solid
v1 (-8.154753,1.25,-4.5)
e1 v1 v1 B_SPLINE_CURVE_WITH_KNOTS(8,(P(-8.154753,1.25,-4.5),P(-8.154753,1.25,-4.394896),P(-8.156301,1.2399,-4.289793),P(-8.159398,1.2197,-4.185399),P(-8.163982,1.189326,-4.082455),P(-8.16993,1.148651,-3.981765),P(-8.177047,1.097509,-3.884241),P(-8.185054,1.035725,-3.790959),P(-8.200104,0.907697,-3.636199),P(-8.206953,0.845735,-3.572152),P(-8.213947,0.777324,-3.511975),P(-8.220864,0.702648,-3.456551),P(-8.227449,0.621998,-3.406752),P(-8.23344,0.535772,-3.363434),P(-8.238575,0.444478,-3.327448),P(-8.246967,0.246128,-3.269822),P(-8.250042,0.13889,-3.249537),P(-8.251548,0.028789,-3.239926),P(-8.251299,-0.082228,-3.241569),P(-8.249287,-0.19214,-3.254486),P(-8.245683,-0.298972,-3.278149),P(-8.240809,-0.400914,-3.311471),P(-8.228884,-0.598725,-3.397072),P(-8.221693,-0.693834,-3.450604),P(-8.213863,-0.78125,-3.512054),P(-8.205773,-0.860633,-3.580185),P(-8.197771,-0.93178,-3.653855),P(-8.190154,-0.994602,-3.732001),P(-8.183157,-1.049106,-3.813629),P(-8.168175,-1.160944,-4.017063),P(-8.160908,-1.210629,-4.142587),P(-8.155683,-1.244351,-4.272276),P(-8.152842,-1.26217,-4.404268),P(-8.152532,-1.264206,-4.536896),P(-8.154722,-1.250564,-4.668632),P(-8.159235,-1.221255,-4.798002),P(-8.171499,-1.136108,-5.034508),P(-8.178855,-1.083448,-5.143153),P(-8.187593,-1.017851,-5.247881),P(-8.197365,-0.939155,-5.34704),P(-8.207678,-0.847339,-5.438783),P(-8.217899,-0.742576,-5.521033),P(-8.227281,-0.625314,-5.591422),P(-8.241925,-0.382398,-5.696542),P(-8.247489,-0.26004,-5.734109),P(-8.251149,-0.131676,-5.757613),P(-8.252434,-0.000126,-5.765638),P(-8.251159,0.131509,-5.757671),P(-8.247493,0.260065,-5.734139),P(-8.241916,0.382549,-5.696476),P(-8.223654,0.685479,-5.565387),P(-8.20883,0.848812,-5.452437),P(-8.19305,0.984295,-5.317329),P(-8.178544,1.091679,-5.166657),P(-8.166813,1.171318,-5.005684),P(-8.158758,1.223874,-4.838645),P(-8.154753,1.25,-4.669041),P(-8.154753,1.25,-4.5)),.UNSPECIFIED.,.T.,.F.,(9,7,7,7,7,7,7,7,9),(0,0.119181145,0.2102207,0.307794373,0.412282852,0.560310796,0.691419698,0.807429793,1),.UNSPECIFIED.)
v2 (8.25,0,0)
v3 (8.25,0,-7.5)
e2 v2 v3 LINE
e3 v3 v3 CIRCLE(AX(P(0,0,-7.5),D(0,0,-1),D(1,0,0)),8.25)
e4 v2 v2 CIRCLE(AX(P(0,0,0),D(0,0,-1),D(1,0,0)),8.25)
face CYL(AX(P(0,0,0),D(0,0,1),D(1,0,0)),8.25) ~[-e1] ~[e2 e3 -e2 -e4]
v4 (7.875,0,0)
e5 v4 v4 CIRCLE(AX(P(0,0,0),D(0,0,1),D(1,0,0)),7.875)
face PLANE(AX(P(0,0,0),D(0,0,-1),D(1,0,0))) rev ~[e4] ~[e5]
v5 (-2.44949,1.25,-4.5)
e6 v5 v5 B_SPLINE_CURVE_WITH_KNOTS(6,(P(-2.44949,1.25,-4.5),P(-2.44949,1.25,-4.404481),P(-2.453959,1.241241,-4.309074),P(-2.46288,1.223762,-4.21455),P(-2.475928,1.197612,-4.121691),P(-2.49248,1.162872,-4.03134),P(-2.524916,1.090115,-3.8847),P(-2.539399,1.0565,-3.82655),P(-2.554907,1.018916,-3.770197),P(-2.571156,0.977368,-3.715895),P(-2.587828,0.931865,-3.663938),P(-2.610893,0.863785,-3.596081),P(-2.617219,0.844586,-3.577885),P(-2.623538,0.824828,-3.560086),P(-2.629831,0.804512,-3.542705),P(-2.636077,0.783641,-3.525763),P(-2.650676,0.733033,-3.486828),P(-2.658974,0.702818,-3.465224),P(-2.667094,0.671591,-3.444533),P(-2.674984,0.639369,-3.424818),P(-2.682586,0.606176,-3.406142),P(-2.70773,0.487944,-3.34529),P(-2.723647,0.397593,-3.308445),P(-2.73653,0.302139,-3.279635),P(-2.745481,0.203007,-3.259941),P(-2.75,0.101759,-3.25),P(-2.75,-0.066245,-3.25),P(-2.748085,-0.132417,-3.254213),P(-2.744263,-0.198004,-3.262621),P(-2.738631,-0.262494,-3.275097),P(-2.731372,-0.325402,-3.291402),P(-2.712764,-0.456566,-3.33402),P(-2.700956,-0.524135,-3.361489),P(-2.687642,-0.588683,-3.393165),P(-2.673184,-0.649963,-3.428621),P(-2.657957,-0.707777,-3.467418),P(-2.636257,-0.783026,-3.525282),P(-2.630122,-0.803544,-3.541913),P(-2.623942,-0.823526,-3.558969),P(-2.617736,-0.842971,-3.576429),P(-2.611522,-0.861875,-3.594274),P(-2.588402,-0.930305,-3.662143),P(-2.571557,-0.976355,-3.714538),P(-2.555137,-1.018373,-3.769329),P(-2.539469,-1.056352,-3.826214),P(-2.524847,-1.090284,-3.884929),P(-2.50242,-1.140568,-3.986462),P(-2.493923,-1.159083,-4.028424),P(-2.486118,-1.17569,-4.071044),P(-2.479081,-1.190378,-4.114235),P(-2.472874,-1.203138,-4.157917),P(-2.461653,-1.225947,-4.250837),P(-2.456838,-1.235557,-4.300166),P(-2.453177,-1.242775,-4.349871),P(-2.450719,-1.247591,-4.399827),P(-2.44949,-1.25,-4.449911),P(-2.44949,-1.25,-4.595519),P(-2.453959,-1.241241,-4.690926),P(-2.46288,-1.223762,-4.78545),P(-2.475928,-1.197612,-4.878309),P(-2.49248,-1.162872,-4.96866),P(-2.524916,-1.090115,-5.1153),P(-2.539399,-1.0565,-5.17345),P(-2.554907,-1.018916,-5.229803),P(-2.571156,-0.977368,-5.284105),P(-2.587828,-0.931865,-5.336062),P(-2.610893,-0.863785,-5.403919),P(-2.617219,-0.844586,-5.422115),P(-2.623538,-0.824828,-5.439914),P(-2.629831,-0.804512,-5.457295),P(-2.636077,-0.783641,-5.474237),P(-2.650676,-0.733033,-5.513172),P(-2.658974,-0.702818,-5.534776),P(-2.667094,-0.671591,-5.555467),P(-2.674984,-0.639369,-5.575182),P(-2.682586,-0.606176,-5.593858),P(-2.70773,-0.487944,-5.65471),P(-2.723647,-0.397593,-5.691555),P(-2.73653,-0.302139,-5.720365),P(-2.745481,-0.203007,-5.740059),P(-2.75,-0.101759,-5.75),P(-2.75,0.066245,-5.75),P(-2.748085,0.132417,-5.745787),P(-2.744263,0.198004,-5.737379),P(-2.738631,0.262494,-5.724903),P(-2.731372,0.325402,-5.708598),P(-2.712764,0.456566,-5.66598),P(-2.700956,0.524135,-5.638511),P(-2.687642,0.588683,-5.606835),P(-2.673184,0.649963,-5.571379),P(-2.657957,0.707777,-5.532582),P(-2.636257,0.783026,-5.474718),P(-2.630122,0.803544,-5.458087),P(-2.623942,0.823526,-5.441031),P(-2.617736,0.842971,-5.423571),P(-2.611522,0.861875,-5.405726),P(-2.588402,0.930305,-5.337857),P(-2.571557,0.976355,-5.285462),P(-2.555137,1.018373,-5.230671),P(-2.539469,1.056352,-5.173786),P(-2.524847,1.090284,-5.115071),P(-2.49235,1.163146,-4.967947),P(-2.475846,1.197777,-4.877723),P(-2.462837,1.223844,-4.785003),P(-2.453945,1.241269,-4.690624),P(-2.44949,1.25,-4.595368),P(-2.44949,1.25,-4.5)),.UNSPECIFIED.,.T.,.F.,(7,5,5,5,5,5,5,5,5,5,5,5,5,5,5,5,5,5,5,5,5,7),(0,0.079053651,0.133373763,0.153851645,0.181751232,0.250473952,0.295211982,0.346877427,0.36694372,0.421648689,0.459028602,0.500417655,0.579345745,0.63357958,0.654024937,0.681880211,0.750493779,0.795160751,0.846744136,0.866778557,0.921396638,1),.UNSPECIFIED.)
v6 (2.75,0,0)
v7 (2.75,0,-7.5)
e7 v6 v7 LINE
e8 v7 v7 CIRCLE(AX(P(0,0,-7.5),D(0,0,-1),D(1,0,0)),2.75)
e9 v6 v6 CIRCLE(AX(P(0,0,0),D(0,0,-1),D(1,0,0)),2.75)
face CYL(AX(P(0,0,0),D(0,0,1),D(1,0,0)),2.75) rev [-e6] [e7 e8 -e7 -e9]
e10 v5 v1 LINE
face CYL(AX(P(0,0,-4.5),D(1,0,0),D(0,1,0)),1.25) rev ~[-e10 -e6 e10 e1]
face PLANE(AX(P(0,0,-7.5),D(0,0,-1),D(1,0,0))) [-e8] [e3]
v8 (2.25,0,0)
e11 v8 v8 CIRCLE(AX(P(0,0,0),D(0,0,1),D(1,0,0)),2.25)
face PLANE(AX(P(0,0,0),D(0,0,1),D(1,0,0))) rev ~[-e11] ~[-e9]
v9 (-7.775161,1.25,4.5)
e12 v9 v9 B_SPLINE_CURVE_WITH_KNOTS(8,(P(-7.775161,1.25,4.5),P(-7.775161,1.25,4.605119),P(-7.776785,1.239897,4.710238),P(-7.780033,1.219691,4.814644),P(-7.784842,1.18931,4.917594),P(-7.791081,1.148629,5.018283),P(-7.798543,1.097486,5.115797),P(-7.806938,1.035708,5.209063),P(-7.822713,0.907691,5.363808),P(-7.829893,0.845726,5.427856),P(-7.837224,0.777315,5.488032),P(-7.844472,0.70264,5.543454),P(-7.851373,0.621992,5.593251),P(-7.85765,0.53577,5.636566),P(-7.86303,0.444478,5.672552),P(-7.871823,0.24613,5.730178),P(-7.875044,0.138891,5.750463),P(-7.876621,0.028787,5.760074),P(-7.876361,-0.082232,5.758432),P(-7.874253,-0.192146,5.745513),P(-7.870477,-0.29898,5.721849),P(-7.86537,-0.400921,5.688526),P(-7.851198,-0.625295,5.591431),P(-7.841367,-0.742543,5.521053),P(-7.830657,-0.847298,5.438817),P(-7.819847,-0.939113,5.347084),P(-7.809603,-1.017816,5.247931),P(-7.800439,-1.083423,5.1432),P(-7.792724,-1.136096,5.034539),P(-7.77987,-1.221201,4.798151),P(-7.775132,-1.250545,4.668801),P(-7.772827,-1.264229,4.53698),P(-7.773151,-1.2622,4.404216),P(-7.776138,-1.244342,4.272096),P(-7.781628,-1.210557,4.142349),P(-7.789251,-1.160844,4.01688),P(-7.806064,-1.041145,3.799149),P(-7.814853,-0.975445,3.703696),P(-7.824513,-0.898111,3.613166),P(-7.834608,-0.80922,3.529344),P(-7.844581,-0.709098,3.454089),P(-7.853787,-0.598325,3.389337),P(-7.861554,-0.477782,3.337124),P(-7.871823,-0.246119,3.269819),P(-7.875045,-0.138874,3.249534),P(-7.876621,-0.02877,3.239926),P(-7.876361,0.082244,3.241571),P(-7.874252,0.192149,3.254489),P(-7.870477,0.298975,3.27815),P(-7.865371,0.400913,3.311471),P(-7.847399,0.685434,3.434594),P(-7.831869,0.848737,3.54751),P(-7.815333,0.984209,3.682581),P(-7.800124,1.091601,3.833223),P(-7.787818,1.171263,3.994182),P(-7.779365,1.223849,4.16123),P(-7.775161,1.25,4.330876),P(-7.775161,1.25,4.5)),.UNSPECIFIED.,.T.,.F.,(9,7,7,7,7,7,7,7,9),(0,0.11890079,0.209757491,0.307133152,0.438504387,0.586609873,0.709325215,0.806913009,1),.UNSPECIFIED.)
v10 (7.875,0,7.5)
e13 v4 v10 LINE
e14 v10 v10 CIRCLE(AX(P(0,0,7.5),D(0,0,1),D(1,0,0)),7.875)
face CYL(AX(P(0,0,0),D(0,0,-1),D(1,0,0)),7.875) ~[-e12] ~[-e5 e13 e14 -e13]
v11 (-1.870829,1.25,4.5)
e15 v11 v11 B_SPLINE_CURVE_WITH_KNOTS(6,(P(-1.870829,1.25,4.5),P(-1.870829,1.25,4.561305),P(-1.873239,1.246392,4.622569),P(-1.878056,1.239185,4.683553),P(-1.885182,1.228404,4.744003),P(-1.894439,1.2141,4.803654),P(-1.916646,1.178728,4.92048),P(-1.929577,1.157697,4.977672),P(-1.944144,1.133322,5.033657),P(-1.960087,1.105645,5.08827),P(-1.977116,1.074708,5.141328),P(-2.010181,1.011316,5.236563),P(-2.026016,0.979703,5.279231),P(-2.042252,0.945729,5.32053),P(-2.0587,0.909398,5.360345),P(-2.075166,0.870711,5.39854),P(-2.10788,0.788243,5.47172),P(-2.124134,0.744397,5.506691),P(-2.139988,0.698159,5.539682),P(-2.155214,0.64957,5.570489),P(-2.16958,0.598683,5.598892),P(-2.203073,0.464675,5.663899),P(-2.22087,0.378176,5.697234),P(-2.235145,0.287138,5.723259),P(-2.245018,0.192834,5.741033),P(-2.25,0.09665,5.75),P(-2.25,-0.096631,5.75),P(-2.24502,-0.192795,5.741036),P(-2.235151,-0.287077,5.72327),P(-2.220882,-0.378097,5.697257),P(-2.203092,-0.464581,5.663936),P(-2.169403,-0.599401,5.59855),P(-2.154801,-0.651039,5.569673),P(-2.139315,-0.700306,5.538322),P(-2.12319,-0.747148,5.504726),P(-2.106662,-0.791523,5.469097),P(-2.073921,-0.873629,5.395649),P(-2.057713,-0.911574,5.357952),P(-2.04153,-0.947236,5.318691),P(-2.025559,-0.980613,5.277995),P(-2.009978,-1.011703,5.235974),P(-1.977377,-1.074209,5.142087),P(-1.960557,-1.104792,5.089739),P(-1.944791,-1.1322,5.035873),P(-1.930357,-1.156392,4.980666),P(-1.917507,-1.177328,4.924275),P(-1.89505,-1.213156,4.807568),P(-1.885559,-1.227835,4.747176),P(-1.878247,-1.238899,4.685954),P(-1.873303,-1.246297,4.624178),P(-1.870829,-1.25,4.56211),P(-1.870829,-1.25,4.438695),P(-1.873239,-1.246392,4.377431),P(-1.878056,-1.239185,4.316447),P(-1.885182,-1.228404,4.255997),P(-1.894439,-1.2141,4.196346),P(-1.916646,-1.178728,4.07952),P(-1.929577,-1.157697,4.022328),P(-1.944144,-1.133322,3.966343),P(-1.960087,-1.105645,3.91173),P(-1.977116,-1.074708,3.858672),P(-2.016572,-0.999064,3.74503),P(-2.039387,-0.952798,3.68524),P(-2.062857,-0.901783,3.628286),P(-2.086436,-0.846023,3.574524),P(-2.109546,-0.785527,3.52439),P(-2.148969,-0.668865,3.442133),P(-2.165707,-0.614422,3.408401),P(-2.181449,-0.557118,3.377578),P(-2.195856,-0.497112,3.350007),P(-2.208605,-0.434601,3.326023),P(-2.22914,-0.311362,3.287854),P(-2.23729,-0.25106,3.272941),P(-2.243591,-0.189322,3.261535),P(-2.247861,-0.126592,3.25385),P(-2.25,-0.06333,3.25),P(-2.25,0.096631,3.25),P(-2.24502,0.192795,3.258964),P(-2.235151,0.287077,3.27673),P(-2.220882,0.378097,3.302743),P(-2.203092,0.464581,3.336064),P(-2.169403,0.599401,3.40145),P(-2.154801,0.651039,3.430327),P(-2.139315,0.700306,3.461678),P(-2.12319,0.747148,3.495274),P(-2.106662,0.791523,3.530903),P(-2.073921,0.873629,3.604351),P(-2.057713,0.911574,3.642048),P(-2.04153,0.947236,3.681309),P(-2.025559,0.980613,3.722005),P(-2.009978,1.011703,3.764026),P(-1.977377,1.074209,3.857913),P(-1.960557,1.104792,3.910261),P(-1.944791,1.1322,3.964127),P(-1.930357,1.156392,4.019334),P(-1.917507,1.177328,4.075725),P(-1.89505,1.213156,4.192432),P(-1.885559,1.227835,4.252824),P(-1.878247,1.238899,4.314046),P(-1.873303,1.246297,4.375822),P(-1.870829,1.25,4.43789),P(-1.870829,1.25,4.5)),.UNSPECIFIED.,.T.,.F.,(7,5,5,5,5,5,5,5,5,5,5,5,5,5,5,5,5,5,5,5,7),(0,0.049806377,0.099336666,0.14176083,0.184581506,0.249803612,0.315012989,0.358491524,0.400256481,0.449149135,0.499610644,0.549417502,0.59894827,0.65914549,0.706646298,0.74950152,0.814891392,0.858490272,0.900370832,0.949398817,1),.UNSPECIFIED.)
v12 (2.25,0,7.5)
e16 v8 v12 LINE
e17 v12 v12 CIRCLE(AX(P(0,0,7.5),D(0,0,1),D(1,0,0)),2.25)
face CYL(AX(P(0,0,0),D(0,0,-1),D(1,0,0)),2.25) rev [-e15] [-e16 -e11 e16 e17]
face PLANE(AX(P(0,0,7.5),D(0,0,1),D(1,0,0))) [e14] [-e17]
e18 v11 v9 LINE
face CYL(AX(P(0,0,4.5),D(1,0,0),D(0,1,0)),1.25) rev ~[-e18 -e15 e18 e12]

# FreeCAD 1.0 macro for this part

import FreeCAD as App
import Part
import Sketcher
Q = App.Units.Quantity

doc = App.newDocument("Part")
params = doc.addObject("Spreadsheet::Sheet", "Params")
for row, (alias, value) in enumerate([
    ("sketch1_diameter", "4.5 mm"),
    ("sketch1_diameter2", "15.75 mm"),
    ("pad1_length", "7.5 mm"),
    ("sketch2_diameter", "16.5 mm"),
    ("sketch2_diameter2", "5.5 mm"),
    ("pad2_length", "7.5 mm"),
    ("sketch3_diameter", "2.5 mm"),
    ("pocket1_length", "25 mm"),
], start=1):
    params.set(f"A{row}", alias)
    params.set(f"B{row}", "=" + value)
    params.setAlias(f"B{row}", alias)

body = doc.addObject("PartDesign::Body", "Body")

# Sketch on XY plane
sketch1 = doc.addObject("Sketcher::SketchObject", "Sketch")
body.addObject(sketch1)
sketch1.AttachmentSupport = (doc.XY_Plane, [""])
sketch1.MapMode = "FlatFace"
sketch1.addGeometry([
    Part.Circle(App.Vector(0, 0, 0), App.Vector(0, 0, 1), 7.9),
    Part.Circle(App.Vector(0, 0, 0), App.Vector(0, 0, 1), 2.2),
], False)
sketch1.addConstraint([
    Sketcher.Constraint("Coincident", 0, 3, -1, 1),
    Sketcher.Constraint("Coincident", 1, 3, -1, 1),
    Sketcher.Constraint("Diameter", 1, Q("4.5 mm")),
    Sketcher.Constraint("Diameter", 0, Q("15.75 mm")),
])
sketch1.setExpression("Constraints[2]", "Params.sketch1_diameter")
sketch1.setExpression("Constraints[3]", "Params.sketch1_diameter2")
pad1 = doc.addObject("PartDesign::Pad", "Pad")
body.addObject(pad1)
pad1.Profile = sketch1
pad1.setExpression("Length", "Params.pad1_length")

# Sketch on XY plane
sketch2 = doc.addObject("Sketcher::SketchObject", "Sketch001")
body.addObject(sketch2)
sketch2.AttachmentSupport = (doc.XY_Plane, [""])
sketch2.MapMode = "FlatFace"
sketch2.addGeometry([
    Part.Circle(App.Vector(0, 0, 0), App.Vector(0, 0, 1), 8.2),
    Part.Circle(App.Vector(0, 0, 0), App.Vector(0, 0, 1), 2.8),
], False)
sketch2.addConstraint([
    Sketcher.Constraint("Coincident", 0, 3, -1, 1),
    Sketcher.Constraint("Coincident", 1, 3, -1, 1),
    Sketcher.Constraint("Diameter", 0, Q("16.5 mm")),
    Sketcher.Constraint("Diameter", 1, Q("5.5 mm")),
])
sketch2.setExpression("Constraints[2]", "Params.sketch2_diameter")
sketch2.setExpression("Constraints[3]", "Params.sketch2_diameter2")
pad2 = doc.addObject("PartDesign::Pad", "Pad001")
body.addObject(pad2)
pad2.Profile = sketch2
pad2.setExpression("Length", "Params.pad2_length")
pad2.Reversed = True

# Sketch on YZ plane
sketch3 = doc.addObject("Sketcher::SketchObject", "Sketch002")
body.addObject(sketch3)
sketch3.AttachmentSupport = (doc.YZ_Plane, [""])
sketch3.MapMode = "FlatFace"
sketch3.addGeometry([
    Part.Circle(App.Vector(0, 4.5, 0), App.Vector(0, 0, 1), 1.2),
    Part.Circle(App.Vector(0, -4.5, 0), App.Vector(0, 0, 1), 1.2),
], False)
sketch3.addConstraint([
    Sketcher.Constraint("Equal", 0, 1),
    Sketcher.Constraint("Symmetric", 0, 3, 1, 3, -1, 1),
    Sketcher.Constraint("PointOnObject", 0, 3, -2),
    Sketcher.Constraint("Diameter", 0, Q("2.5 mm")),
    Sketcher.Constraint("DistanceY", 1, 3, 0, 3, Q("9 mm")),
])
sketch3.setExpression("Constraints[3]", "Params.sketch3_diameter")
pocket1 = doc.addObject("PartDesign::Pocket", "Pocket")
body.addObject(pocket1)
pocket1.Profile = sketch3
pocket1.setExpression("Length", "Params.pocket1_length")

doc.recompute()
